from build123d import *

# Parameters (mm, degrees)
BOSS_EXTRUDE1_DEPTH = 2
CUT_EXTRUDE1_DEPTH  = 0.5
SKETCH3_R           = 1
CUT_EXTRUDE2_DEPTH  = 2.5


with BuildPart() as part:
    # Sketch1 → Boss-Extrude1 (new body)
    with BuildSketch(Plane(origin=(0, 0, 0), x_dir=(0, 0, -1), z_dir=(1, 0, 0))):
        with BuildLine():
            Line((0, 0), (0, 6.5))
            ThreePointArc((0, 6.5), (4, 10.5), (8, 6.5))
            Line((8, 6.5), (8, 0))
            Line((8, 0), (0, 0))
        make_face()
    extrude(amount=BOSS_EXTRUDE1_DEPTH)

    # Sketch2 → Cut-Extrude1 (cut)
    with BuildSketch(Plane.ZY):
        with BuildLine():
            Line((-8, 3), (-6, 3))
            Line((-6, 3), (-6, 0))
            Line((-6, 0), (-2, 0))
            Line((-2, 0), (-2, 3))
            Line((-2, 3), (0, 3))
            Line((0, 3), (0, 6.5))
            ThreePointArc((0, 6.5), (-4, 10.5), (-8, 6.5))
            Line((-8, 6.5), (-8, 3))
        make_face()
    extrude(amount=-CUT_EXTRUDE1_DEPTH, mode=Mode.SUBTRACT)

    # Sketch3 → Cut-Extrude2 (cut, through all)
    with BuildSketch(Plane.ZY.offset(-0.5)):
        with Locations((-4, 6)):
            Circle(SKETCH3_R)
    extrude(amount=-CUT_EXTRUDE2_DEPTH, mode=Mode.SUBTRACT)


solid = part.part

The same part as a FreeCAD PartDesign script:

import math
import FreeCAD as App
import Part
import Sketcher

V = App.Vector
Q = App.Units.Quantity

doc = App.newDocument("Part")
body = doc.addObject("PartDesign::Body", "Body")

# Sketch on YZ plane
sketch1 = doc.addObject("Sketcher::SketchObject", "Sketch")
body.addObject(sketch1)
sketch1.AttachmentSupport = (doc.YZ_Plane, [""])
sketch1.MapMode = "FlatFace"
sketch1.addGeometry([
    Part.LineSegment(V(6.5, 0, 0), V(0, 0, 0)),
    Part.LineSegment(V(0, 0, 0), V(0, -8, 0)),
    Part.LineSegment(V(0, -8, 0), V(6.5, -8, 0)),
    Part.ArcOfCircle(Part.Circle(V(6.5, -4, 0), V(0, 0, 1), 4), math.radians(-90), math.radians(90)),
], False)
sketch1.addConstraint([
    Sketcher.Constraint("Coincident", 0, 2, 1, 1),
    Sketcher.Constraint("Coincident", 1, 2, 2, 1),
    Sketcher.Constraint("Tangent", 2, 2, 3, 1),
    Sketcher.Constraint("Tangent", 3, 2, 0, 1),
    Sketcher.Constraint("Horizontal", 0),
    Sketcher.Constraint("Vertical", 1),
    Sketcher.Constraint("Horizontal", 2),
    Sketcher.Constraint("Coincident", 0, 2, -1, 1),
    Sketcher.Constraint("Radius", 3, Q("4 mm")),
    Sketcher.Constraint("DistanceX", 0, 2, 0, 1, Q("6.5 mm")),
])
pad1 = doc.addObject("PartDesign::Pad", "Pad")
body.addObject(pad1)
pad1.Profile = sketch1
pad1.Length = 2

# Sketch on YZ plane
sketch2 = doc.addObject("Sketcher::SketchObject", "Sketch001")
body.addObject(sketch2)
sketch2.AttachmentSupport = (doc.YZ_Plane, [""])
sketch2.MapMode = "FlatFace"
sketch2.addGeometry([
    Part.LineSegment(V(3, -8, 0), V(3, -6, 0)),  # 0
    Part.LineSegment(V(3, -6, 0), V(0, -6, 0)),  # 1
    Part.LineSegment(V(0, -6, 0), V(0, -2, 0)),  # 2
    Part.LineSegment(V(0, -2, 0), V(3, -2, 0)),  # 3
    Part.LineSegment(V(3, -2, 0), V(3, 0, 0)),  # 4
    Part.LineSegment(V(3, 0, 0), V(6.5, 0, 0)),  # 5
    Part.ArcOfCircle(Part.Circle(V(6.5, -4, 0), V(0, 0, 1), 4), math.radians(-90), math.radians(90)),  # 6
    Part.LineSegment(V(6.5, -8, 0), V(3, -8, 0)),  # 7
], False)
sketch2.addConstraint([
    Sketcher.Constraint("Coincident", 0, 2, 1, 1),
    Sketcher.Constraint("Coincident", 1, 2, 2, 1),
    Sketcher.Constraint("Coincident", 2, 2, 3, 1),
    Sketcher.Constraint("Coincident", 3, 2, 4, 1),
    Sketcher.Constraint("Coincident", 4, 2, 5, 1),
    Sketcher.Constraint("Tangent", 5, 2, 6, 2),
    Sketcher.Constraint("Tangent", 6, 1, 7, 1),
    Sketcher.Constraint("Coincident", 7, 2, 0, 1),
    Sketcher.Constraint("Vertical", 0),
    Sketcher.Constraint("Horizontal", 1),
    Sketcher.Constraint("Vertical", 2),
    Sketcher.Constraint("Horizontal", 3),
    Sketcher.Constraint("Vertical", 4),
    Sketcher.Constraint("Horizontal", 5),
    Sketcher.Constraint("Horizontal", 7),
    Sketcher.Constraint("PointOnObject", 1, 2, -2),
    Sketcher.Constraint("PointOnObject", 4, 2, -1),
    Sketcher.Constraint("Vertical", 0, 2, 3, 2),
    Sketcher.Constraint("Equal", 0, 4),
    Sketcher.Constraint("Radius", 6, Q("4 mm")),
    Sketcher.Constraint("DistanceX", 1, 2, 1, 1, Q("3 mm")),
    Sketcher.Constraint("DistanceY", 0, 1, 0, 2, Q("2 mm")),
    Sketcher.Constraint("DistanceX", 5, 1, 5, 2, Q("3.5 mm")),
])
pocket1 = doc.addObject("PartDesign::Pocket", "Pocket")
body.addObject(pocket1)
pocket1.Profile = sketch2
pocket1.Length = 0.5
pocket1.Reversed = True

# Sketch on YZ plane
sketch3 = doc.addObject("Sketcher::SketchObject", "Sketch002")
body.addObject(sketch3)
sketch3.AttachmentSupport = (doc.YZ_Plane, [""])
sketch3.MapMode = "FlatFace"
sketch3.AttachmentOffset = App.Placement(V(0, 0, 0.5), App.Rotation())
sketch3.addGeometry(Part.Circle(V(6, -4, 0), V(0, 0, 1), 1), False)
sketch3.addConstraint([
    Sketcher.Constraint("Diameter", 0, Q("2 mm")),
    Sketcher.Constraint("DistanceX", -1, 1, 0, 3, Q("6 mm")),
    Sketcher.Constraint("DistanceY", 0, 3, -1, 1, Q("4 mm")),
])
pocket2 = doc.addObject("PartDesign::Pocket", "Pocket001")
body.addObject(pocket2)
pocket2.Profile = sketch3
pocket2.Type = "ThroughAll"
pocket2.Reversed = True

doc.recompute()
